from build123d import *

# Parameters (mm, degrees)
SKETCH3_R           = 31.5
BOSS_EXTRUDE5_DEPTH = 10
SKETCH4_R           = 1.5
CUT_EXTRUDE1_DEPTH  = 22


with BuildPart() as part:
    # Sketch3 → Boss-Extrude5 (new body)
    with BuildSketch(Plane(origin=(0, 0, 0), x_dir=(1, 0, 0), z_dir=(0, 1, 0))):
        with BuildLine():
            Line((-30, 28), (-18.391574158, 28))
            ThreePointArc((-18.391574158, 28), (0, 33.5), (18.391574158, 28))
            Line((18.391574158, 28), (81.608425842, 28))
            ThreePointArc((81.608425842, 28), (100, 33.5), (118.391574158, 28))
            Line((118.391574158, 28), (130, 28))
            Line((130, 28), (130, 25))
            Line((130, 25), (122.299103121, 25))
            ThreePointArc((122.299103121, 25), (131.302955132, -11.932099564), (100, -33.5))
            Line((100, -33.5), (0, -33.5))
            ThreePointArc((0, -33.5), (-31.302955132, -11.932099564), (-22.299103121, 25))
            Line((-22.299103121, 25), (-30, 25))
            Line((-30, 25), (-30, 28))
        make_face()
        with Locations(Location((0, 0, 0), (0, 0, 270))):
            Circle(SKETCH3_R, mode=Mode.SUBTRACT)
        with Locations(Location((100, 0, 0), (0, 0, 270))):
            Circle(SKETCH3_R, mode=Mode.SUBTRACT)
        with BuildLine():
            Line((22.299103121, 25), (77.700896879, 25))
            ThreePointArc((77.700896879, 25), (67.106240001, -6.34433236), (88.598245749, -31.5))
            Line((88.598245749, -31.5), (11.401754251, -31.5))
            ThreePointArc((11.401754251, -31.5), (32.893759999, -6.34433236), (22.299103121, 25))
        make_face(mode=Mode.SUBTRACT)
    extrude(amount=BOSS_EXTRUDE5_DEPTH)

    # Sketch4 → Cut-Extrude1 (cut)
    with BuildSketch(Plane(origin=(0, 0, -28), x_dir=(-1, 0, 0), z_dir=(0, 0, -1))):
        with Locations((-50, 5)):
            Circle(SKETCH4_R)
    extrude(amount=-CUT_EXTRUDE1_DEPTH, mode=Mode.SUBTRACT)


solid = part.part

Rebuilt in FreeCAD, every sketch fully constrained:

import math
import FreeCAD as App
import Part
import Sketcher

doc = App.newDocument("Part")
body = doc.addObject("PartDesign::Body", "Body")

# Sketch on XZ plane
sketch1 = doc.addObject("Sketcher::SketchObject", "Sketch")
body.addObject(sketch1)
sketch1.AttachmentSupport = (doc.XZ_Plane, [""])
sketch1.MapMode = "FlatFace"
sketch1.addGeometry([
    Part.LineSegment(App.Vector(-18.4, -28, 0), App.Vector(-30, -28, 0)),  # 0
    Part.LineSegment(App.Vector(-30, -28, 0), App.Vector(-30, -25, 0)),  # 1
    Part.LineSegment(App.Vector(-30, -25, 0), App.Vector(-22.3, -25, 0)),  # 2
    Part.ArcOfCircle(Part.Circle(App.Vector(0, 0, 0), App.Vector(0, 0, 1), 33.5), math.radians(90), math.radians(228)),  # 3
    Part.LineSegment(App.Vector(0, 33.5, 0), App.Vector(100, 33.5, 0)),  # 4
    Part.ArcOfCircle(Part.Circle(App.Vector(100, 0, 0), App.Vector(0, 0, 1), 33.5), math.radians(-48), math.radians(90)),  # 5
    Part.LineSegment(App.Vector(122.3, -25, 0), App.Vector(130, -25, 0)),  # 6
    Part.LineSegment(App.Vector(130, -25, 0), App.Vector(130, -28, 0)),  # 7
    Part.LineSegment(App.Vector(130, -28, 0), App.Vector(118.4, -28, 0)),  # 8
    Part.ArcOfCircle(Part.Circle(App.Vector(100, 0, 0), App.Vector(0, 0, 1), 33.5), math.radians(-123), math.radians(-57)),  # 9
    Part.LineSegment(App.Vector(81.6, -28, 0), App.Vector(18.4, -28, 0)),  # 10
    Part.ArcOfCircle(Part.Circle(App.Vector(0, 0, 0), App.Vector(0, 0, 1), 33.5), math.radians(-123), math.radians(-57)),  # 11
    Part.LineSegment(App.Vector(22.3, -25, 0), App.Vector(77.7, -25, 0)),  # 12
    Part.ArcOfCircle(Part.Circle(App.Vector(100, 0, 0), App.Vector(0, 0, 1), 33.5), math.radians(110), math.radians(228)),  # 13
    Part.LineSegment(App.Vector(88.6, 31.5, 0), App.Vector(11.4, 31.5, 0)),  # 14
    Part.ArcOfCircle(Part.Circle(App.Vector(0, 0, 0), App.Vector(0, 0, 1), 33.5), math.radians(-48), math.radians(70)),  # 15
    Part.Circle(App.Vector(100, 0, 0), App.Vector(0, 0, 1), 31.5),  # 16
    Part.Circle(App.Vector(0, 0, 0), App.Vector(0, 0, 1), 31.5),  # 17
], False)
sketch1.addConstraint([
    Sketcher.Constraint("Coincident", 0, 2, 1, 1),
    Sketcher.Constraint("Coincident", 1, 2, 2, 1),
    Sketcher.Constraint("Coincident", 2, 2, 3, 2),
    Sketcher.Constraint("Tangent", 3, 1, 4, 1),
    Sketcher.Constraint("Tangent", 4, 2, 5, 2),
    Sketcher.Constraint("Coincident", 5, 1, 6, 1),
    Sketcher.Constraint("Coincident", 6, 2, 7, 1),
    Sketcher.Constraint("Coincident", 7, 2, 8, 1),
    Sketcher.Constraint("Coincident", 8, 2, 9, 2),
    Sketcher.Constraint("Coincident", 9, 1, 10, 1),
    Sketcher.Constraint("Coincident", 10, 2, 11, 2),
    Sketcher.Constraint("Coincident", 11, 1, 0, 1),
    Sketcher.Constraint("Coincident", 12, 2, 13, 2),
    Sketcher.Constraint("Coincident", 13, 1, 14, 1),
    Sketcher.Constraint("Coincident", 14, 2, 15, 2),
    Sketcher.Constraint("Coincident", 15, 1, 12, 1),
    Sketcher.Constraint("Horizontal", 0),
    Sketcher.Constraint("Vertical", 1),
    Sketcher.Constraint("Horizontal", 2),
    Sketcher.Constraint("Horizontal", 4),
    Sketcher.Constraint("Horizontal", 6),
    Sketcher.Constraint("Vertical", 7),
    Sketcher.Constraint("Horizontal", 8),
    Sketcher.Constraint("Horizontal", 10),
    Sketcher.Constraint("Horizontal", 12),
    Sketcher.Constraint("Horizontal", 14),
    Sketcher.Constraint("Coincident", 3, 3, -1, 1),
    Sketcher.Constraint("Coincident", 11, 3, -1, 1),
    Sketcher.Constraint("Coincident", 15, 3, -1, 1),
    Sketcher.Constraint("Coincident", 17, 3, -1, 1),
    Sketcher.Constraint("Coincident", 9, 3, 5, 3),
    Sketcher.Constraint("Coincident", 13, 3, 5, 3),
    Sketcher.Constraint("Coincident", 16, 3, 5, 3),
    Sketcher.Constraint("Equal", 3, 5),
    Sketcher.Constraint("Equal", 5, 9),
    Sketcher.Constraint("Equal", 9, 11),
    Sketcher.Constraint("Equal", 11, 13),
    Sketcher.Constraint("Equal", 13, 15),
    Sketcher.Constraint("Equal", 16, 17),
    Sketcher.Constraint("Horizontal", 2, 2, 5, 1),
    Sketcher.Constraint("Horizontal", 0, 2, 7, 2),
    Sketcher.Constraint("Horizontal", 8, 2, 9, 1),
    Sketcher.Constraint("Horizontal", 6, 2, 12, 2),
    Sketcher.Constraint("Equal", 2, 6),
    Sketcher.Constraint("Diameter", 16, 63.0),
    Sketcher.Constraint("Radius", 3, 33.5),
    Sketcher.Constraint("DistanceX", 4, 1, 4, 2, 100.0),
    Sketcher.Constraint("DistanceY", 1, 1, 1, 2, 3.0),
    Sketcher.Constraint("DistanceX", 0, 2, -1, 1, 30.0),
    Sketcher.Constraint("DistanceY", 0, 2, -1, 1, 28.0),
    Sketcher.Constraint("DistanceY", 13, 1, 4, 2, 2.0),
])
pad1 = doc.addObject("PartDesign::Pad", "Pad")
body.addObject(pad1)
pad1.Profile = sketch1
pad1.Length = 10
pad1.Reversed = True

# Sketch on XY plane
sketch2 = doc.addObject("Sketcher::SketchObject", "Sketch001")
body.addObject(sketch2)
sketch2.AttachmentSupport = (doc.XY_Plane, [""])
sketch2.MapMode = "FlatFace"
sketch2.AttachmentOffset = App.Placement(App.Vector(0, 0, -28), App.Rotation())
sketch2.addGeometry(Part.Circle(App.Vector(50, 5, 0), App.Vector(0, 0, 1), 1.5), False)
sketch2.addConstraint([
    Sketcher.Constraint("Diameter", 0, 3.0),
    Sketcher.Constraint("DistanceX", -1, 1, 0, 3, 50.0),
    Sketcher.Constraint("DistanceY", -1, 1, 0, 3, 5.0),
])
pocket1 = doc.addObject("PartDesign::Pocket", "Pocket")
body.addObject(pocket1)
pocket1.Profile = sketch2
pocket1.Length = 22
pocket1.Reversed = True

doc.recompute()
